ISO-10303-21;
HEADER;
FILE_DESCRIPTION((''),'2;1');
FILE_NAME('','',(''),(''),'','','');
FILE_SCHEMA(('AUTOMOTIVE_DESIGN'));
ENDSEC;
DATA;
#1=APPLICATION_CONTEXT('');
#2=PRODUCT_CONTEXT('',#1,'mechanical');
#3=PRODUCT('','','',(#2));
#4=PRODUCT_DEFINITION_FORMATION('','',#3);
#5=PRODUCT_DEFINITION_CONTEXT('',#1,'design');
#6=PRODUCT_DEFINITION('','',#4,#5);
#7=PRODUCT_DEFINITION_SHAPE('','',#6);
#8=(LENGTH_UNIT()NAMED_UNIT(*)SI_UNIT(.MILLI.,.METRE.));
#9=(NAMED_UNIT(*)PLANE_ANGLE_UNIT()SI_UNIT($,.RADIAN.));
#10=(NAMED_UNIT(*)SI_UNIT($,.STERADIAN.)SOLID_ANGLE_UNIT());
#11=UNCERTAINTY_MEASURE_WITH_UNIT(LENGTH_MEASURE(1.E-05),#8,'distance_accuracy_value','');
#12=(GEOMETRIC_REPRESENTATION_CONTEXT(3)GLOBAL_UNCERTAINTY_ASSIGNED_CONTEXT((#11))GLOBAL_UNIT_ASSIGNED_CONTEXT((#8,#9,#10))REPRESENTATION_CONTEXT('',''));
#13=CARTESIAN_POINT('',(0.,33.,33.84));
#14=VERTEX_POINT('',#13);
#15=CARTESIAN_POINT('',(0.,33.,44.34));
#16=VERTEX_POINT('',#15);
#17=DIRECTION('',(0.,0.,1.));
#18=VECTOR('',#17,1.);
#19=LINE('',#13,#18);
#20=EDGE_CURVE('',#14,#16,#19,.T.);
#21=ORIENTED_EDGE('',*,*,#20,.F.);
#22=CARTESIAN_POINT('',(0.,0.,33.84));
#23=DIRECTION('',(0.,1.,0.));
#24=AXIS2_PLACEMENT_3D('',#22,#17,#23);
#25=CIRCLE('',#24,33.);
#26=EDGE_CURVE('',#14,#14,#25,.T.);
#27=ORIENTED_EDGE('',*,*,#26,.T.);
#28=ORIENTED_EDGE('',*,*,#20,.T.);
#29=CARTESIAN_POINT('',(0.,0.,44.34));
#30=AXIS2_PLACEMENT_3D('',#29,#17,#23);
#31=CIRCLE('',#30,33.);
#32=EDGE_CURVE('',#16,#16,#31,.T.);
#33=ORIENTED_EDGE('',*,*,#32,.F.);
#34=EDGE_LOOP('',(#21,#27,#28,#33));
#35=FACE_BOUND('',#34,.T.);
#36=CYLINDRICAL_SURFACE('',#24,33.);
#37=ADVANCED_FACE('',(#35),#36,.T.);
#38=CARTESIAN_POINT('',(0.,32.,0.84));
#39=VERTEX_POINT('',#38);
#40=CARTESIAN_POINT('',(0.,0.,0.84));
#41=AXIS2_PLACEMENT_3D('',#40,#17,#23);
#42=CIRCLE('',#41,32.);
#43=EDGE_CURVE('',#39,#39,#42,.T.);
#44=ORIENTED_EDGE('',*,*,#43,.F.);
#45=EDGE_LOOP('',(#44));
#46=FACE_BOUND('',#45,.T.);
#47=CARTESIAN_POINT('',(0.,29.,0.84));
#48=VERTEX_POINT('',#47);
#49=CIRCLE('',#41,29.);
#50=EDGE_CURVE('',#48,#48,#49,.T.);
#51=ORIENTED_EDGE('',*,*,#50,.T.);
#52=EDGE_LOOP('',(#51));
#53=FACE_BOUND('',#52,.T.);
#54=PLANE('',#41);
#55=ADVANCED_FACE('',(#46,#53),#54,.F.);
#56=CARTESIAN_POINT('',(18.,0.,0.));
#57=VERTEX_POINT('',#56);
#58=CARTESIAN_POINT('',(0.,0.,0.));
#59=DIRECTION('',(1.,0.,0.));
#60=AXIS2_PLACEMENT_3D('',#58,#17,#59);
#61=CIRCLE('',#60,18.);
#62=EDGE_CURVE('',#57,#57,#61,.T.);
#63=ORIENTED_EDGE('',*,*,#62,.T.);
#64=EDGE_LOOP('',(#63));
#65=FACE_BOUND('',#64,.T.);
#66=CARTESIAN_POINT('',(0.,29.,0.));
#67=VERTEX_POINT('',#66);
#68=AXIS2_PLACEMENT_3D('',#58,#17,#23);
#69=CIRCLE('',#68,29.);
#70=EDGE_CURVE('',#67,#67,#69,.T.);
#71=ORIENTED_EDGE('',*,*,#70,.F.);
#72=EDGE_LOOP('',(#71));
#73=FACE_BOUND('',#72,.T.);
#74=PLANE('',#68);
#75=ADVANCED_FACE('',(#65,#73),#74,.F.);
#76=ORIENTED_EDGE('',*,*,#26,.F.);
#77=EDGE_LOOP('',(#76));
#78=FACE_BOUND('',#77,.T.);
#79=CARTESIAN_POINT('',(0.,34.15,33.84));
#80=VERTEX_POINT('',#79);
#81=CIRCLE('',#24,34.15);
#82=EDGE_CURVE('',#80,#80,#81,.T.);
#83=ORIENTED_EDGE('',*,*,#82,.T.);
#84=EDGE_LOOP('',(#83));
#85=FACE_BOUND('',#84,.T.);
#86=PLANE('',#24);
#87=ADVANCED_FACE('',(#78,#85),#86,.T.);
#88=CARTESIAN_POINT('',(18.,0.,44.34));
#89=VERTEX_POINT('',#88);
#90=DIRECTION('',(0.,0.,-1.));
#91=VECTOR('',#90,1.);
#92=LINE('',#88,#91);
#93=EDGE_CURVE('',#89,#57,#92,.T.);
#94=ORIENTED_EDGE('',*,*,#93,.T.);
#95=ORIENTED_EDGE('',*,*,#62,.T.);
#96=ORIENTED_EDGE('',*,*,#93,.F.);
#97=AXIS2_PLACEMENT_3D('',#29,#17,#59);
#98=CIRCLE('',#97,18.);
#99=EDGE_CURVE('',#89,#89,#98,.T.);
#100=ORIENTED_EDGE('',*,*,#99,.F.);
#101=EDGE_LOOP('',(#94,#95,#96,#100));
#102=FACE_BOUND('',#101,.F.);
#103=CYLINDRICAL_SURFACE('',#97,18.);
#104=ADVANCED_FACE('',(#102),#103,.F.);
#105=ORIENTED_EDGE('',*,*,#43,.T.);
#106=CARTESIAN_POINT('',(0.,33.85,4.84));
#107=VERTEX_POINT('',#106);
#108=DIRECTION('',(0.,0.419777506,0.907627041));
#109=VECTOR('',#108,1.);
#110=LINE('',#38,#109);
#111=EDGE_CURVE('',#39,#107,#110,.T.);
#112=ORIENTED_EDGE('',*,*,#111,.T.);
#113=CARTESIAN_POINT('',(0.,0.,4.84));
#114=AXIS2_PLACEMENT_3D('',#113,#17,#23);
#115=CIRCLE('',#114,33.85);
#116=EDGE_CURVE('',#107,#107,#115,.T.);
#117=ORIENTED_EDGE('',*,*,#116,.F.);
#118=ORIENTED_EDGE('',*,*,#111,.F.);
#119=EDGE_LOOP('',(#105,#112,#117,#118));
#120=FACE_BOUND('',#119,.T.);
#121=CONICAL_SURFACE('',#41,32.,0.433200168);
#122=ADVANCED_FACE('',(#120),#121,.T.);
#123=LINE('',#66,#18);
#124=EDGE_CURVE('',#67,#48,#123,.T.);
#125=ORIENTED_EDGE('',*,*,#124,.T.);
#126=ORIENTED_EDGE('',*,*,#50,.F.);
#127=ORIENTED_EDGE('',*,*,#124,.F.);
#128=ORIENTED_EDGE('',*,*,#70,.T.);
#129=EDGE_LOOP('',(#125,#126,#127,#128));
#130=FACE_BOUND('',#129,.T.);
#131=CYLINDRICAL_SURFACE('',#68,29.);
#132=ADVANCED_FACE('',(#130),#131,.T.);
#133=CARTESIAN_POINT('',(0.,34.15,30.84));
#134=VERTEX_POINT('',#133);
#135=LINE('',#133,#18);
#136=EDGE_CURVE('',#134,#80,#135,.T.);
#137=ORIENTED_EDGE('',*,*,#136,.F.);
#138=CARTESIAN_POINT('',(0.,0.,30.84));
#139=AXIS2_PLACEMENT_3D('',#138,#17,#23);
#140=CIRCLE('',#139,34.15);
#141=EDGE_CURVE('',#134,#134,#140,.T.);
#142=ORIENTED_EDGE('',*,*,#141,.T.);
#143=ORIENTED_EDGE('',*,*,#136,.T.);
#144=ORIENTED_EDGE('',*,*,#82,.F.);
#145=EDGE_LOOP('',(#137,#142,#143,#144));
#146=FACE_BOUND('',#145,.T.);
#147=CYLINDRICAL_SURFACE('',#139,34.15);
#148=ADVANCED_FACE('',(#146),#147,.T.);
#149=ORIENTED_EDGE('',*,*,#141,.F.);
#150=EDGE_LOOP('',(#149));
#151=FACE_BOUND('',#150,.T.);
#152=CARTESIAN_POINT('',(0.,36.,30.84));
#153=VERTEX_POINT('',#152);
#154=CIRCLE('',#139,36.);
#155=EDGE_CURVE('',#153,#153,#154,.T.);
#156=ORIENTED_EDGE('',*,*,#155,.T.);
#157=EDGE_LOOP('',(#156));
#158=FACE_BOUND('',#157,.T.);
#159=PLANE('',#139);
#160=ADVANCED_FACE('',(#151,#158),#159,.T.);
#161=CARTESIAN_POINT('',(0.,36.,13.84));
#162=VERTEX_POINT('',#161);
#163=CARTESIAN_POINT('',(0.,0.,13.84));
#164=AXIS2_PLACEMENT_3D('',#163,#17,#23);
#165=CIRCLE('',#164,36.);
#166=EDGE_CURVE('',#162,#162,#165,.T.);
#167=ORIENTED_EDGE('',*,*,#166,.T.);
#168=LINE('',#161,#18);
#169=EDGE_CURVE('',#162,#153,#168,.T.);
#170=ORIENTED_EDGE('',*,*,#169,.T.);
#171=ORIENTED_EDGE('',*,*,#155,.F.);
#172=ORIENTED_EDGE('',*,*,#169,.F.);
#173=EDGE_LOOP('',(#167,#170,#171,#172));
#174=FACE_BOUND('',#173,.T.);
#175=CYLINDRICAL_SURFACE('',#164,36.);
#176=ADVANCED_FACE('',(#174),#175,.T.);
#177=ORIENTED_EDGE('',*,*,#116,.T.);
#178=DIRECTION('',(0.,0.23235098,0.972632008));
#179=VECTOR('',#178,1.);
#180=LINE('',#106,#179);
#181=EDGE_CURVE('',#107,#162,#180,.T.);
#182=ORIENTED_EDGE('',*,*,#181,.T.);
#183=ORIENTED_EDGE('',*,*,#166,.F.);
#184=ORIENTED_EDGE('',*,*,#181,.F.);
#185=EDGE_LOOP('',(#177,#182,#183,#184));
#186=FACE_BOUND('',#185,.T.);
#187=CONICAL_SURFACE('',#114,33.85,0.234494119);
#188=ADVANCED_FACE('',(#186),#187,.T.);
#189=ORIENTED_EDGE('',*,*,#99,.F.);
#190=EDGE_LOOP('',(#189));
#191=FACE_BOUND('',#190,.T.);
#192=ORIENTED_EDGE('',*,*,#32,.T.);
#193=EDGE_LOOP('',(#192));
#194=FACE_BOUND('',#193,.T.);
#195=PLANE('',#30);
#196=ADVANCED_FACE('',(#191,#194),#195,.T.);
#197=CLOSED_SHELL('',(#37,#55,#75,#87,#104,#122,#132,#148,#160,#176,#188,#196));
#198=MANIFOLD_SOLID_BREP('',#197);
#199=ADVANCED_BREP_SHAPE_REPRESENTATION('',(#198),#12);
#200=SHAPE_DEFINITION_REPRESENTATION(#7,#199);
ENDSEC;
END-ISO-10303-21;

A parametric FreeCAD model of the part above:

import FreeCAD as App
import Part
import Sketcher
from FreeCAD import Vector
Q = App.Units.Quantity

doc = App.newDocument("Part")
body = doc.addObject("PartDesign::Body", "Body")

# Sketch on YZ plane
sketch1 = body.newObject("Sketcher::SketchObject", "Sketch")
sketch1.AttachmentSupport = (doc.getObject("YZ_Plane"), [""])
sketch1.MapMode = "FlatFace"
sketch1.addGeometry(Part.LineSegment(Vector(0, 44.34, 0), Vector(0, 0, 0)), False)
sketch1.addGeometry(Part.LineSegment(Vector(0, 0, 0), Vector(29, 0, 0)), False)
sketch1.addGeometry(Part.LineSegment(Vector(29, 0, 0), Vector(29, 0.84, 0)), False)
sketch1.addGeometry(Part.LineSegment(Vector(29, 0.84, 0), Vector(32, 0.84, 0)), False)
sketch1.addGeometry(Part.LineSegment(Vector(32, 0.84, 0), Vector(33.85, 4.84, 0)), False)
sketch1.addGeometry(Part.LineSegment(Vector(33.85, 4.84, 0), Vector(36, 13.84, 0)), False)
sketch1.addGeometry(Part.LineSegment(Vector(36, 13.84, 0), Vector(36, 30.84, 0)), False)
sketch1.addGeometry(Part.LineSegment(Vector(36, 30.84, 0), Vector(34.15, 30.84, 0)), False)
sketch1.addGeometry(Part.LineSegment(Vector(34.15, 30.84, 0), Vector(34.15, 33.84, 0)), False)
sketch1.addGeometry(Part.LineSegment(Vector(34.15, 33.84, 0), Vector(33, 33.84, 0)), False)
sketch1.addGeometry(Part.LineSegment(Vector(33, 33.84, 0), Vector(33, 44.34, 0)), False)
sketch1.addGeometry(Part.LineSegment(Vector(33, 44.34, 0), Vector(0, 44.34, 0)), False)
sketch1.addConstraint(Sketcher.Constraint("Coincident", 0, 2, 1, 1))
sketch1.addConstraint(Sketcher.Constraint("Coincident", 1, 2, 2, 1))
sketch1.addConstraint(Sketcher.Constraint("Coincident", 2, 2, 3, 1))
sketch1.addConstraint(Sketcher.Constraint("Coincident", 3, 2, 4, 1))
sketch1.addConstraint(Sketcher.Constraint("Coincident", 4, 2, 5, 1))
sketch1.addConstraint(Sketcher.Constraint("Coincident", 5, 2, 6, 1))
sketch1.addConstraint(Sketcher.Constraint("Coincident", 6, 2, 7, 1))
sketch1.addConstraint(Sketcher.Constraint("Coincident", 7, 2, 8, 1))
sketch1.addConstraint(Sketcher.Constraint("Coincident", 8, 2, 9, 1))
sketch1.addConstraint(Sketcher.Constraint("Coincident", 9, 2, 10, 1))
sketch1.addConstraint(Sketcher.Constraint("Coincident", 10, 2, 11, 1))
sketch1.addConstraint(Sketcher.Constraint("Coincident", 11, 2, 0, 1))
sketch1.addConstraint(Sketcher.Constraint("Vertical", 0))
sketch1.addConstraint(Sketcher.Constraint("Horizontal", 1))
sketch1.addConstraint(Sketcher.Constraint("Vertical", 2))
sketch1.addConstraint(Sketcher.Constraint("Horizontal", 3))
sketch1.addConstraint(Sketcher.Constraint("Vertical", 6))
sketch1.addConstraint(Sketcher.Constraint("Horizontal", 7))
sketch1.addConstraint(Sketcher.Constraint("Vertical", 8))
sketch1.addConstraint(Sketcher.Constraint("Horizontal", 9))
sketch1.addConstraint(Sketcher.Constraint("Vertical", 10))
sketch1.addConstraint(Sketcher.Constraint("Horizontal", 11))
sketch1.addConstraint(Sketcher.Constraint("Coincident", 0, 2, -1, 1))
sketch1.addConstraint(Sketcher.Constraint("Equal", 3, 8))
sketch1.addConstraint(Sketcher.Constraint("DistanceX", 3, 1, 3, 2, Q("3 mm")))
sketch1.addConstraint(Sketcher.Constraint("DistanceY", 6, 1, 6, 2, Q("17 mm")))
sketch1.addConstraint(Sketcher.Constraint("DistanceY", 10, 1, 10, 2, Q("10.5 mm")))
sketch1.addConstraint(Sketcher.Constraint("DistanceY", 3, 2, 4, 2, Q("4 mm")))
sketch1.addConstraint(Sketcher.Constraint("DistanceY", 4, 2, 5, 2, Q("9 mm")))
sketch1.addConstraint(Sketcher.Constraint("DistanceX", 3, 2, 5, 2, Q("4 mm")))
sketch1.addConstraint(Sketcher.Constraint("DistanceX", 9, 2, 6, 2, Q("3 mm")))
sketch1.addConstraint(Sketcher.Constraint("DistanceY", 2, 1, 2, 2, Q("0.84 mm")))
sketch1.addConstraint(Sketcher.Constraint("DistanceX", 1, 1, 1, 2, Q("29 mm")))
sketch1.addConstraint(Sketcher.Constraint("DistanceX", 7, 2, 7, 1, Q("1.85 mm")))
sketch1.addConstraint(Sketcher.Constraint("Angle", 4, Q("65.1795 deg")))
revolution = body.newObject("PartDesign::Revolution", "Revolution")
revolution.Profile = sketch1
revolution.ReferenceAxis = (sketch1, ["V_Axis"])
revolution.Angle = 360

# Sketch on XY plane
sketch2 = body.newObject("Sketcher::SketchObject", "Sketch001")
sketch2.AttachmentSupport = (doc.getObject("XY_Plane"), [""])
sketch2.MapMode = "FlatFace"
sketch2.AttachmentOffset = App.Placement(Vector(0, 0, 44.34), App.Rotation())
sketch2.addGeometry(Part.Circle(Vector(0, 0, 0), Vector(0, 0, 1), 18), False)
sketch2.addConstraint(Sketcher.Constraint("Coincident", 0, 3, -1, 1))
sketch2.addConstraint(Sketcher.Constraint("Diameter", 0, Q("36 mm")))
pocket1 = body.newObject("PartDesign::Pocket", "Pocket")
pocket1.Profile = sketch2
pocket1.Type = "UpToFirst"

doc.recompute()
